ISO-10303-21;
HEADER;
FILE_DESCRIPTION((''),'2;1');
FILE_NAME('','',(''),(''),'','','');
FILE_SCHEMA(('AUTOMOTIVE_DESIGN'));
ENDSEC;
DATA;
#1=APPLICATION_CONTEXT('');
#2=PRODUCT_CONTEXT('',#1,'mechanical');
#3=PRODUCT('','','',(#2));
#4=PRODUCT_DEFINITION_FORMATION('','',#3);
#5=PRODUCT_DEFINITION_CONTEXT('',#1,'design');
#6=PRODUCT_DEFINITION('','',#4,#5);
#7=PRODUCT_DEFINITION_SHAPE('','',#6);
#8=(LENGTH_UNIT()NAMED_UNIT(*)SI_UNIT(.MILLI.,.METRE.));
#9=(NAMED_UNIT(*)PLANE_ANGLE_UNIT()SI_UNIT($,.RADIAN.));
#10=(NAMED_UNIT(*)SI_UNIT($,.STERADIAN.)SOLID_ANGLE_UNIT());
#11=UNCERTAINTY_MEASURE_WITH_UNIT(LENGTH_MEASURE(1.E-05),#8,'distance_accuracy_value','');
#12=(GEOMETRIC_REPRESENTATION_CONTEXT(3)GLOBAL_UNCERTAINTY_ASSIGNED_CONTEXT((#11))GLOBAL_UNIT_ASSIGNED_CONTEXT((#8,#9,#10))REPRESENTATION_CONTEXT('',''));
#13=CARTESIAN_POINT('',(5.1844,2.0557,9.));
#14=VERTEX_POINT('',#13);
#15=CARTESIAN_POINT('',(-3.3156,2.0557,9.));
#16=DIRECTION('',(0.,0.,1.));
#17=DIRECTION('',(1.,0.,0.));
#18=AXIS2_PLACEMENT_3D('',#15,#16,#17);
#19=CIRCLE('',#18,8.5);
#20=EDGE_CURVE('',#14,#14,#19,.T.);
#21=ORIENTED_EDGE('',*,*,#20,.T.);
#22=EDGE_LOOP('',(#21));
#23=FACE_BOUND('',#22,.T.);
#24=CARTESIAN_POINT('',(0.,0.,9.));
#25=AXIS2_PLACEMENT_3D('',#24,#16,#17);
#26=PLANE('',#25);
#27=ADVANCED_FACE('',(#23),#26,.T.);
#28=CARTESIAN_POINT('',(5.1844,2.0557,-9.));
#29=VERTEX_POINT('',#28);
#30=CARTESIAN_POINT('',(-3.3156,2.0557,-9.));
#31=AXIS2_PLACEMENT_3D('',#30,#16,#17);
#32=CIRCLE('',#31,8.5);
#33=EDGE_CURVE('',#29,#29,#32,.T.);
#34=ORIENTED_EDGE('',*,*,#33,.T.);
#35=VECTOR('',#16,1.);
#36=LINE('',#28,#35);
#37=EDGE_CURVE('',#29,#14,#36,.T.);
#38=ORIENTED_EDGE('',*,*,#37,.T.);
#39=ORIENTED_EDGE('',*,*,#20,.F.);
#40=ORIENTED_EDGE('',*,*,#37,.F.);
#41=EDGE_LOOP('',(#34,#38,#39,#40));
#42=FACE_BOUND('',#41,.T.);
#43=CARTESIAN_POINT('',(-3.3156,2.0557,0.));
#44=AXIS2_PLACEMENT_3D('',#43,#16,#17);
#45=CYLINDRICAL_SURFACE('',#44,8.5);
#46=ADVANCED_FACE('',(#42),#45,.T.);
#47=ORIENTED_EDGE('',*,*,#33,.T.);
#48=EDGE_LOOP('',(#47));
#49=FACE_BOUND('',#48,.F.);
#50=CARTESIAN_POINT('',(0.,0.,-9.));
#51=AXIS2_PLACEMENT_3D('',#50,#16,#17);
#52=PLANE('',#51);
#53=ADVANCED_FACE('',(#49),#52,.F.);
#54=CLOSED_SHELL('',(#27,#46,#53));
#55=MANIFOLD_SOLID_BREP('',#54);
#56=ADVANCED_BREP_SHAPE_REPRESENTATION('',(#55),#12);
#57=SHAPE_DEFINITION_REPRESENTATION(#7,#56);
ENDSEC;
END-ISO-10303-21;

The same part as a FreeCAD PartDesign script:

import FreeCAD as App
import Part
import Sketcher

V = App.Vector
Q = App.Units.Quantity

doc = App.newDocument("Part")
body = doc.addObject("PartDesign::Body", "Body")

# Sketch on XY plane
sketch1 = doc.addObject("Sketcher::SketchObject", "Sketch")
body.addObject(sketch1)
sketch1.AttachmentSupport = (doc.XY_Plane, [""])
sketch1.MapMode = "FlatFace"
sketch1.addGeometry(Part.Circle(V(-3, 2, 0), V(0, 0, 1), 8), False)
sketch1.addConstraint([
    Sketcher.Constraint("Diameter", 0, Q("17 mm")),
    Sketcher.Constraint("DistanceX", 0, 3, -1, 1, Q("3.3156 mm")),
    Sketcher.Constraint("DistanceY", -1, 1, 0, 3, Q("2.0557 mm")),
])
pad1 = doc.addObject("PartDesign::Pad", "Pad")
body.addObject(pad1)
pad1.Profile = sketch1
pad1.Length = 18
pad1.Midplane = True

doc.recompute()
